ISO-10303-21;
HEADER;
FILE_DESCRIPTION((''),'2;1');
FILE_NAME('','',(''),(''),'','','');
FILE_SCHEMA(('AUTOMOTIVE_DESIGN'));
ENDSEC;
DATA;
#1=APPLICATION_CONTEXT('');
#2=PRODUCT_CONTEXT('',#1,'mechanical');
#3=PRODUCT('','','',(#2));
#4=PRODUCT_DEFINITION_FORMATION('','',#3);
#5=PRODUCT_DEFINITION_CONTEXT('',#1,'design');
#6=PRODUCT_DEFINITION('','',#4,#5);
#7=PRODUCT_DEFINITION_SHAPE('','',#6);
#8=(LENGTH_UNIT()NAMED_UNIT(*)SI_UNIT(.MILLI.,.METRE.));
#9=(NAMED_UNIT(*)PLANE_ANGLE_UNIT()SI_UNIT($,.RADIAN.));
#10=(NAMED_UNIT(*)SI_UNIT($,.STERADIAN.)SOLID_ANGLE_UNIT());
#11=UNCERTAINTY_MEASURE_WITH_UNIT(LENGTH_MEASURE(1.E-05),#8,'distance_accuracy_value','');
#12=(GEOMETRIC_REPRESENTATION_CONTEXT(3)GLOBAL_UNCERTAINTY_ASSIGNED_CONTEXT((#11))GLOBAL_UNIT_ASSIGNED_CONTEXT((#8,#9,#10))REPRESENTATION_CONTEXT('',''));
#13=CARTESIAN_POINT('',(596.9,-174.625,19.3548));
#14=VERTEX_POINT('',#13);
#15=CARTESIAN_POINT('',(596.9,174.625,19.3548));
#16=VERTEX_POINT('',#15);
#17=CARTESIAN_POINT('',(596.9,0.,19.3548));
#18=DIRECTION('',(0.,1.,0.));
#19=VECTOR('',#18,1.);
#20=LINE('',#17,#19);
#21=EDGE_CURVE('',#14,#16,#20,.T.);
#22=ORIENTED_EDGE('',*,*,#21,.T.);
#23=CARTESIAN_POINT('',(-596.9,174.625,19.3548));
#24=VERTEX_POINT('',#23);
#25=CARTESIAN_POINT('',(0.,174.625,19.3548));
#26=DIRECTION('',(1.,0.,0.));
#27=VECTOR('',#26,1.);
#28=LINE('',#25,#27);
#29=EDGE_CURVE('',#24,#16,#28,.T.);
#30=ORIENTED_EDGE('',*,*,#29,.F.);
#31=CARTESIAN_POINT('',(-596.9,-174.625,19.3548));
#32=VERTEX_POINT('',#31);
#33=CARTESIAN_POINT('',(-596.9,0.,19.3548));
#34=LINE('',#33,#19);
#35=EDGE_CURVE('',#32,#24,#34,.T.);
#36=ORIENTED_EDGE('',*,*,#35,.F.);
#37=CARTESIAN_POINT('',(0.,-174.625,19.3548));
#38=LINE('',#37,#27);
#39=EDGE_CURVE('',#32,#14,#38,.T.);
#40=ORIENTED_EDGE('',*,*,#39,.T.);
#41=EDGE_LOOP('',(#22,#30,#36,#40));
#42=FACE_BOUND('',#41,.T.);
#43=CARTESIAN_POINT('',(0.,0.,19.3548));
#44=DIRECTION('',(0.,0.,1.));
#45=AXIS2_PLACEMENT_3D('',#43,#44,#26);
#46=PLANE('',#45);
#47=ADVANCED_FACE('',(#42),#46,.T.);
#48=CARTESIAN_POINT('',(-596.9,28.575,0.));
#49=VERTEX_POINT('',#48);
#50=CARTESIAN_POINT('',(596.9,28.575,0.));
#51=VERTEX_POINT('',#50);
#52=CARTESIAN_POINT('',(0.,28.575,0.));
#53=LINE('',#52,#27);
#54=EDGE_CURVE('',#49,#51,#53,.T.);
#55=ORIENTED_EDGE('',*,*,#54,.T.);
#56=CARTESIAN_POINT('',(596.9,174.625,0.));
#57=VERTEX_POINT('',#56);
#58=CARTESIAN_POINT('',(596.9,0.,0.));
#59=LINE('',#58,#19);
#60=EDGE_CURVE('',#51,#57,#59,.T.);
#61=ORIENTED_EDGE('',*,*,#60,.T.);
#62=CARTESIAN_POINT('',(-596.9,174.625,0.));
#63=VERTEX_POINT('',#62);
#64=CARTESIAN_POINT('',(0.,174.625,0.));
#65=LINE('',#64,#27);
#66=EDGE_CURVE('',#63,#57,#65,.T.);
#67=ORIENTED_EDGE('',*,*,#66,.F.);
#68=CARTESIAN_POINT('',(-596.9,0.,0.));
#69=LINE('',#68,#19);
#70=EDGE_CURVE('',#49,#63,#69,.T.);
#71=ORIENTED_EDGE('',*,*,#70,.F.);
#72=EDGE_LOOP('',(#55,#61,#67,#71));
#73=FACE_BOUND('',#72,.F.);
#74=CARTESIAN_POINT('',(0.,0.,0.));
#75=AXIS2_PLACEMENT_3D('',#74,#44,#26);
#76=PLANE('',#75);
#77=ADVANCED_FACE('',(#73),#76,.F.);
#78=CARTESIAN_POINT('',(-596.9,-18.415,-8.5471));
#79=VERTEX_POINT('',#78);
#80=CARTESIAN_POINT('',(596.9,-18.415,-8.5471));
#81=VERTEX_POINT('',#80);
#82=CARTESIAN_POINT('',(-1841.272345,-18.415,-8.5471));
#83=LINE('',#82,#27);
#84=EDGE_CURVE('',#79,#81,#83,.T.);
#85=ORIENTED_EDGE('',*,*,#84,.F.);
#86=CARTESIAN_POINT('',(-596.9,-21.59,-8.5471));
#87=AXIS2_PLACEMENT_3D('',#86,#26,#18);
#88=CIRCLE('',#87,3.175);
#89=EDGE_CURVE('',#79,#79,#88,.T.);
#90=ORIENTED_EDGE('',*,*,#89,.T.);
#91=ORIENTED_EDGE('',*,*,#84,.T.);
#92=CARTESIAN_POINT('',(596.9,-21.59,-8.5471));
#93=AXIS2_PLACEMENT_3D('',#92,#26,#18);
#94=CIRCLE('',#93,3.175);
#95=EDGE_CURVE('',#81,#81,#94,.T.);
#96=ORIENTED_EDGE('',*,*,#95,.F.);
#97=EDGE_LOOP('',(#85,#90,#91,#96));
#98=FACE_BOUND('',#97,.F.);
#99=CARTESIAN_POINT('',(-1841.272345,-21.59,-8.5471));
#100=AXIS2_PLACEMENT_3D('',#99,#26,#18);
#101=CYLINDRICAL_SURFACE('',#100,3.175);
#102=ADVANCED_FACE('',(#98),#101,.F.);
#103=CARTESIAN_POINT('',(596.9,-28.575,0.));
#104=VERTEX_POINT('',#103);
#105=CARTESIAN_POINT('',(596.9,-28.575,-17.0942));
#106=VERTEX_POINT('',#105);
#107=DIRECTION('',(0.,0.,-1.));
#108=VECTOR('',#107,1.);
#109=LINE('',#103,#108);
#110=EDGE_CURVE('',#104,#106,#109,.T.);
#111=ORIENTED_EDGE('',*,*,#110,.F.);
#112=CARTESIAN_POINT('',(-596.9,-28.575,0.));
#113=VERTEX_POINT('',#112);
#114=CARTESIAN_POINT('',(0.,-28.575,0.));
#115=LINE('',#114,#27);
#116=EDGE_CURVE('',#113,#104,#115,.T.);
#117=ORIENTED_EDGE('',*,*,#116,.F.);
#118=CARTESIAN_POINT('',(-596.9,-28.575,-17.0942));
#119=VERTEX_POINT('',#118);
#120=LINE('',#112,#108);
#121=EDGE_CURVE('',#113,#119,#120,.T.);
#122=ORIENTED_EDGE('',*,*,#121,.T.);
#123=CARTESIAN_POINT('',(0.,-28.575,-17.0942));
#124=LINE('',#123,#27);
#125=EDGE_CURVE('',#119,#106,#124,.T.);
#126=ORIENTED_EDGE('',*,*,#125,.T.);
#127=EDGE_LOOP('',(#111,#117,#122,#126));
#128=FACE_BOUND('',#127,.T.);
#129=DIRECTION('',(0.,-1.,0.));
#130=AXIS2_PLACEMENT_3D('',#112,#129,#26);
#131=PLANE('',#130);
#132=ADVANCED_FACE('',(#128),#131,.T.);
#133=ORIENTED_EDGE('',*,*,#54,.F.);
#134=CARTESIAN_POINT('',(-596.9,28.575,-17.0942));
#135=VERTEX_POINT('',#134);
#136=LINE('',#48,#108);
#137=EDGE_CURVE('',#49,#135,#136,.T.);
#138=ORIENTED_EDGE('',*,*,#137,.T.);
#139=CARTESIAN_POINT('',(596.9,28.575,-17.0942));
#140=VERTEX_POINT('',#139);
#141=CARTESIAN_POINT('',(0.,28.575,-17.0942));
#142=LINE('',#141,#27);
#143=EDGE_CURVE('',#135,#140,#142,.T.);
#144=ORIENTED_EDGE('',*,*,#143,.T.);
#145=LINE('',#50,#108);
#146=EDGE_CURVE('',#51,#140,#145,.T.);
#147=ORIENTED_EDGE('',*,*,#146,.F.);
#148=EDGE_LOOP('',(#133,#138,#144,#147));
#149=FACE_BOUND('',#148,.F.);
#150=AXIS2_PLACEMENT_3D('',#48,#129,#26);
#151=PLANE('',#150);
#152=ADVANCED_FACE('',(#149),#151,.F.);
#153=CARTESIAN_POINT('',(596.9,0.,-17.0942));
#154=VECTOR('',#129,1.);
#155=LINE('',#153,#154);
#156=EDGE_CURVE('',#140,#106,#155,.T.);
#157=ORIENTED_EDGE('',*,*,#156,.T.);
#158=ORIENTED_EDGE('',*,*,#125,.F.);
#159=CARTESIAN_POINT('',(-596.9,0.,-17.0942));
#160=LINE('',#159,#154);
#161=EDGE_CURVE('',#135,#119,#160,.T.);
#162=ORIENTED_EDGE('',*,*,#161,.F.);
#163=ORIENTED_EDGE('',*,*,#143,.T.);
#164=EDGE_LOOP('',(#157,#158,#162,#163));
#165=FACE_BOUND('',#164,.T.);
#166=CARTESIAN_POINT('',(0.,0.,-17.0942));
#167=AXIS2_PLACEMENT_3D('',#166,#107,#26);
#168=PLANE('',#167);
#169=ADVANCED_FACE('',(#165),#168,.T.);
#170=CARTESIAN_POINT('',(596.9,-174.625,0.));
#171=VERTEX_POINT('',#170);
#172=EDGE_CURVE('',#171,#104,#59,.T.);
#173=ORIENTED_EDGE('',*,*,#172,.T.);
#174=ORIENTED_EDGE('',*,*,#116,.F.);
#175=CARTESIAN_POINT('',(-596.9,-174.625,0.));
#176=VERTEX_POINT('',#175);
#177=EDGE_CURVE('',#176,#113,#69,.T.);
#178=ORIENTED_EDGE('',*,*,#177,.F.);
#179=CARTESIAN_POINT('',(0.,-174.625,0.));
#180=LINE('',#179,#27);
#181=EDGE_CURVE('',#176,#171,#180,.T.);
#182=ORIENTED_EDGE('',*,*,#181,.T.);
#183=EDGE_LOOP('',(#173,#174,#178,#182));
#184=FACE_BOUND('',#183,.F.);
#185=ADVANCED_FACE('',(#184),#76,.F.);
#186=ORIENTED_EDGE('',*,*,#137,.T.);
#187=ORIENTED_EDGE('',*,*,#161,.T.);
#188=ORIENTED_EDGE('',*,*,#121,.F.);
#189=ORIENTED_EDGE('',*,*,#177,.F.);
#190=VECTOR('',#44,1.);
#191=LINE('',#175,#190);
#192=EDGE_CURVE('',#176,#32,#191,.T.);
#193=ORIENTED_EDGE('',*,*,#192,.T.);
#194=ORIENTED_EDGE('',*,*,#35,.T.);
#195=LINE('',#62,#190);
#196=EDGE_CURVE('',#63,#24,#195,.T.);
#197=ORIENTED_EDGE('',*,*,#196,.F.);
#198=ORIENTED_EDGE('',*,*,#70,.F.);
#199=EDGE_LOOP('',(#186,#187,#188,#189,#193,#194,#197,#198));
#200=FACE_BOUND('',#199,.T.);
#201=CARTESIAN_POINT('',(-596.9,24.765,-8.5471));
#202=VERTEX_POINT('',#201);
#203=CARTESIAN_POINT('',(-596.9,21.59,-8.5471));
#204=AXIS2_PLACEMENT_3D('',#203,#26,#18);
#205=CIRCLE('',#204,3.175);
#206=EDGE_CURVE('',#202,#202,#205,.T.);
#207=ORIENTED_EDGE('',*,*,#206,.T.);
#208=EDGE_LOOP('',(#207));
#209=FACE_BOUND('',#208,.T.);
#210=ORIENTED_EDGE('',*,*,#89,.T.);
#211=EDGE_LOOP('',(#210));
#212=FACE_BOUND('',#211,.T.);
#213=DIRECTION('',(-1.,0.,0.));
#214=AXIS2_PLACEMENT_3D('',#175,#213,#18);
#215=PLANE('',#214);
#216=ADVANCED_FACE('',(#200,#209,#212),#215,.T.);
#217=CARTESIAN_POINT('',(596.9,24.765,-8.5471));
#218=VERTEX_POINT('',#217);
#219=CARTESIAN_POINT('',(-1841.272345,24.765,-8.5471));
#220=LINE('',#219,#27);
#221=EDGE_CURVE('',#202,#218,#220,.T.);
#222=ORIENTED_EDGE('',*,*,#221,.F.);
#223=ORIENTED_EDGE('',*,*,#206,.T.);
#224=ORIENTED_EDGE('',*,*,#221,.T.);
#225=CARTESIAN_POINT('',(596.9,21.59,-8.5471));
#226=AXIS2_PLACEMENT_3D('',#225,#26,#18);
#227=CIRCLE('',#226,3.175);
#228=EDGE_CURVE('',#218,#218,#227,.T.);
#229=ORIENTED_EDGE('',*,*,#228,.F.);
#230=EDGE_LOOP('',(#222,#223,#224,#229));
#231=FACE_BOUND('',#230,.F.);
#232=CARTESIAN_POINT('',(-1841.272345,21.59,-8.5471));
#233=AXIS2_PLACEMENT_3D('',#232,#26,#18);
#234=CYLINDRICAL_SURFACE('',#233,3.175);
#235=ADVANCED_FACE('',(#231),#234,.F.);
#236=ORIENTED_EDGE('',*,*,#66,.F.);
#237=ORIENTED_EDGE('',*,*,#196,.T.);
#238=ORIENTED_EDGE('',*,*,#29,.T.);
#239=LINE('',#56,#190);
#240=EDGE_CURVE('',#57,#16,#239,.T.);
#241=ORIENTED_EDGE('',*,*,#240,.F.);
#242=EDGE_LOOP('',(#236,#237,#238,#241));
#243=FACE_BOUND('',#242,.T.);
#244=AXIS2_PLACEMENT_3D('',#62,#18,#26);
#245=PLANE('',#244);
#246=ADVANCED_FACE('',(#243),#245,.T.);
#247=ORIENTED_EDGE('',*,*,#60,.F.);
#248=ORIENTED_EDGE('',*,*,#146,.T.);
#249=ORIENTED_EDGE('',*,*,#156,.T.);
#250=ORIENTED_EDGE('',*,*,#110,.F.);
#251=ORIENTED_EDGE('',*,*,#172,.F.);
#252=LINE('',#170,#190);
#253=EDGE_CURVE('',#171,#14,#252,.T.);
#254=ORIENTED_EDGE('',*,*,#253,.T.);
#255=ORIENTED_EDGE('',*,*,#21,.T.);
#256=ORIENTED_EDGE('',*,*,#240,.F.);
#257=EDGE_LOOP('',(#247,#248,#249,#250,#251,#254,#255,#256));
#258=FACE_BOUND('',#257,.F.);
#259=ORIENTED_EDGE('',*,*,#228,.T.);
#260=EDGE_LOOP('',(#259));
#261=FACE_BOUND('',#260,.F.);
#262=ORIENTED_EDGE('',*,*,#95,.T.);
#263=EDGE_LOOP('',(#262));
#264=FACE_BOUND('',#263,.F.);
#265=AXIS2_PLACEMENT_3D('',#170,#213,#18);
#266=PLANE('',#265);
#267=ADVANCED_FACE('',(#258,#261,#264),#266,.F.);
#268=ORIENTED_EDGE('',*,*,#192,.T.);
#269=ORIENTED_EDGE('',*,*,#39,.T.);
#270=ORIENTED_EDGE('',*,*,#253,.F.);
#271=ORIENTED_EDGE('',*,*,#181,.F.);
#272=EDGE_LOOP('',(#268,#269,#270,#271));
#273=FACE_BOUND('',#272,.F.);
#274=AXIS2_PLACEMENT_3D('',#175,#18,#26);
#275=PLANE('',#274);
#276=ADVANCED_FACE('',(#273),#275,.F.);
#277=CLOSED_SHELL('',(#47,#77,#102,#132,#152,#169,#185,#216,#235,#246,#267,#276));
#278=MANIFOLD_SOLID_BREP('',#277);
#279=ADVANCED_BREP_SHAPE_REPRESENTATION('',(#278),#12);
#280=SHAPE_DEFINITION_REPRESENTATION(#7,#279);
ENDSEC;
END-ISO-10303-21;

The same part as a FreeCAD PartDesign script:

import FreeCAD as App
import Part
import Sketcher
from FreeCAD import Vector
Q = App.Units.Quantity


def add_polygon(sketch, points):
    """Adds a closed chain of lines whose ends are joined by coincident constraints."""
    first, n = sketch.GeometryCount, len(points)
    for a, b in zip(points, points[1:] + points[:1]):
        sketch.addGeometry(Part.LineSegment(App.Vector(*a, 0), App.Vector(*b, 0)), False)
    for i in range(n):
        sketch.addConstraint(Sketcher.Constraint("Coincident", first + i, 2, first + (i + 1) % n, 1))

doc = App.newDocument("Part")
params = doc.addObject("Spreadsheet::Sheet", "Params")
for row, (alias, value) in enumerate([
    ("sketch1_width", "47 in"),
    ("sketch1_height", "13.75 in"),
    ("pad1_length", "0.762 in"),
    ("sketch2_width", "47 in"),
    ("sketch2_height", "2.25 in"),
    ("pad2_length", "0.673 in"),
    ("sketch3_diameter", "0.25 in"),
    ("hole_diameter", "0.25 in"),
], start=1):
    params.set(f"A{row}", alias)
    params.set(f"B{row}", "=" + value)
    params.setAlias(f"B{row}", alias)

body = doc.addObject("PartDesign::Body", "Body")

sketch1 = doc.addObject("Sketcher::SketchObject", "Sketch")
body.addObject(sketch1)
sketch1.AttachmentSupport = (doc.XY_Plane, [""])
sketch1.MapMode = "FlatFace"
add_polygon(sketch1, [(-597, 175), (-597, -175), (597, -175), (597, 175)])
sketch1.addConstraint([
    Sketcher.Constraint("Vertical", 0),
    Sketcher.Constraint("Horizontal", 1),
    Sketcher.Constraint("Vertical", 2),
    Sketcher.Constraint("Horizontal", 3),
    Sketcher.Constraint("Symmetric", 0, 2, 2, 2, -1, 1),
    Sketcher.Constraint("DistanceX", 1, 1, 1, 2, Q("47 in")),
    Sketcher.Constraint("DistanceY", 0, 2, 0, 1, Q("13.75 in")),
])
sketch1.setExpression("Constraints[9]", "Params.sketch1_width")
sketch1.setExpression("Constraints[10]", "Params.sketch1_height")
pad1 = doc.addObject("PartDesign::Pad", "Pad")
body.addObject(pad1)
pad1.Profile = sketch1
pad1.setExpression("Length", "Params.pad1_length")

sketch2 = doc.addObject("Sketcher::SketchObject", "Sketch001")
body.addObject(sketch2)
sketch2.AttachmentSupport = (doc.XY_Plane, [""])
sketch2.MapMode = "FlatFace"
add_polygon(sketch2, [(-597, -29), (-597, 29), (597, 29), (597, -29)])
sketch2.addConstraint([
    Sketcher.Constraint("Vertical", 0),
    Sketcher.Constraint("Horizontal", 1),
    Sketcher.Constraint("Vertical", 2),
    Sketcher.Constraint("Horizontal", 3),
    Sketcher.Constraint("Symmetric", 0, 2, 2, 2, -1, 1),
    Sketcher.Constraint("DistanceX", 1, 1, 1, 2, Q("47 in")),
    Sketcher.Constraint("DistanceY", 0, 1, 0, 2, Q("2.25 in")),
])
sketch2.setExpression("Constraints[9]", "Params.sketch2_width")
sketch2.setExpression("Constraints[10]", "Params.sketch2_height")
pad2 = doc.addObject("PartDesign::Pad", "Pad001")
body.addObject(pad2)
pad2.Profile = sketch2
pad2.setExpression("Length", "Params.pad2_length")
pad2.Reversed = True

sketch3 = doc.addObject("Sketcher::SketchObject", "Sketch002")
body.addObject(sketch3)
sketch3.AttachmentSupport = (doc.YZ_Plane, [""])
sketch3.MapMode = "FlatFace"
sketch3.AttachmentOffset = App.Placement(Vector(0, 0, -23.5 * 25.4), App.Rotation())
sketch3.addGeometry([
    Part.Circle(Vector(21.6, -8.5, 0), Vector(0, 0, 1), 3.2),
    Part.Circle(Vector(-21.6, -8.5, 0), Vector(0, 0, 1), 3.2),
], False)
sketch3.addConstraint([
    Sketcher.Constraint("Equal", 0, 1),
    Sketcher.Constraint("Symmetric", 0, 3, 1, 3, -2),
    Sketcher.Constraint("Diameter", 0, Q("0.25 in")),
    Sketcher.Constraint("DistanceX", 1, 3, 0, 3, Q("1.7 in")),
    Sketcher.Constraint("DistanceY", 0, 3, -1, 1, Q("0.3365 in")),
])
sketch3.setExpression("Constraints[2]", "Params.sketch3_diameter")
doc.recompute()
hole = doc.addObject("PartDesign::Hole", "Hole")
body.addObject(hole)
hole.Profile = sketch3
hole.ThreadType = "None"
hole.setExpression("Diameter", "Params.hole_diameter")
hole.DepthType = "ThroughAll"
hole.Reversed = True

doc.recompute()
